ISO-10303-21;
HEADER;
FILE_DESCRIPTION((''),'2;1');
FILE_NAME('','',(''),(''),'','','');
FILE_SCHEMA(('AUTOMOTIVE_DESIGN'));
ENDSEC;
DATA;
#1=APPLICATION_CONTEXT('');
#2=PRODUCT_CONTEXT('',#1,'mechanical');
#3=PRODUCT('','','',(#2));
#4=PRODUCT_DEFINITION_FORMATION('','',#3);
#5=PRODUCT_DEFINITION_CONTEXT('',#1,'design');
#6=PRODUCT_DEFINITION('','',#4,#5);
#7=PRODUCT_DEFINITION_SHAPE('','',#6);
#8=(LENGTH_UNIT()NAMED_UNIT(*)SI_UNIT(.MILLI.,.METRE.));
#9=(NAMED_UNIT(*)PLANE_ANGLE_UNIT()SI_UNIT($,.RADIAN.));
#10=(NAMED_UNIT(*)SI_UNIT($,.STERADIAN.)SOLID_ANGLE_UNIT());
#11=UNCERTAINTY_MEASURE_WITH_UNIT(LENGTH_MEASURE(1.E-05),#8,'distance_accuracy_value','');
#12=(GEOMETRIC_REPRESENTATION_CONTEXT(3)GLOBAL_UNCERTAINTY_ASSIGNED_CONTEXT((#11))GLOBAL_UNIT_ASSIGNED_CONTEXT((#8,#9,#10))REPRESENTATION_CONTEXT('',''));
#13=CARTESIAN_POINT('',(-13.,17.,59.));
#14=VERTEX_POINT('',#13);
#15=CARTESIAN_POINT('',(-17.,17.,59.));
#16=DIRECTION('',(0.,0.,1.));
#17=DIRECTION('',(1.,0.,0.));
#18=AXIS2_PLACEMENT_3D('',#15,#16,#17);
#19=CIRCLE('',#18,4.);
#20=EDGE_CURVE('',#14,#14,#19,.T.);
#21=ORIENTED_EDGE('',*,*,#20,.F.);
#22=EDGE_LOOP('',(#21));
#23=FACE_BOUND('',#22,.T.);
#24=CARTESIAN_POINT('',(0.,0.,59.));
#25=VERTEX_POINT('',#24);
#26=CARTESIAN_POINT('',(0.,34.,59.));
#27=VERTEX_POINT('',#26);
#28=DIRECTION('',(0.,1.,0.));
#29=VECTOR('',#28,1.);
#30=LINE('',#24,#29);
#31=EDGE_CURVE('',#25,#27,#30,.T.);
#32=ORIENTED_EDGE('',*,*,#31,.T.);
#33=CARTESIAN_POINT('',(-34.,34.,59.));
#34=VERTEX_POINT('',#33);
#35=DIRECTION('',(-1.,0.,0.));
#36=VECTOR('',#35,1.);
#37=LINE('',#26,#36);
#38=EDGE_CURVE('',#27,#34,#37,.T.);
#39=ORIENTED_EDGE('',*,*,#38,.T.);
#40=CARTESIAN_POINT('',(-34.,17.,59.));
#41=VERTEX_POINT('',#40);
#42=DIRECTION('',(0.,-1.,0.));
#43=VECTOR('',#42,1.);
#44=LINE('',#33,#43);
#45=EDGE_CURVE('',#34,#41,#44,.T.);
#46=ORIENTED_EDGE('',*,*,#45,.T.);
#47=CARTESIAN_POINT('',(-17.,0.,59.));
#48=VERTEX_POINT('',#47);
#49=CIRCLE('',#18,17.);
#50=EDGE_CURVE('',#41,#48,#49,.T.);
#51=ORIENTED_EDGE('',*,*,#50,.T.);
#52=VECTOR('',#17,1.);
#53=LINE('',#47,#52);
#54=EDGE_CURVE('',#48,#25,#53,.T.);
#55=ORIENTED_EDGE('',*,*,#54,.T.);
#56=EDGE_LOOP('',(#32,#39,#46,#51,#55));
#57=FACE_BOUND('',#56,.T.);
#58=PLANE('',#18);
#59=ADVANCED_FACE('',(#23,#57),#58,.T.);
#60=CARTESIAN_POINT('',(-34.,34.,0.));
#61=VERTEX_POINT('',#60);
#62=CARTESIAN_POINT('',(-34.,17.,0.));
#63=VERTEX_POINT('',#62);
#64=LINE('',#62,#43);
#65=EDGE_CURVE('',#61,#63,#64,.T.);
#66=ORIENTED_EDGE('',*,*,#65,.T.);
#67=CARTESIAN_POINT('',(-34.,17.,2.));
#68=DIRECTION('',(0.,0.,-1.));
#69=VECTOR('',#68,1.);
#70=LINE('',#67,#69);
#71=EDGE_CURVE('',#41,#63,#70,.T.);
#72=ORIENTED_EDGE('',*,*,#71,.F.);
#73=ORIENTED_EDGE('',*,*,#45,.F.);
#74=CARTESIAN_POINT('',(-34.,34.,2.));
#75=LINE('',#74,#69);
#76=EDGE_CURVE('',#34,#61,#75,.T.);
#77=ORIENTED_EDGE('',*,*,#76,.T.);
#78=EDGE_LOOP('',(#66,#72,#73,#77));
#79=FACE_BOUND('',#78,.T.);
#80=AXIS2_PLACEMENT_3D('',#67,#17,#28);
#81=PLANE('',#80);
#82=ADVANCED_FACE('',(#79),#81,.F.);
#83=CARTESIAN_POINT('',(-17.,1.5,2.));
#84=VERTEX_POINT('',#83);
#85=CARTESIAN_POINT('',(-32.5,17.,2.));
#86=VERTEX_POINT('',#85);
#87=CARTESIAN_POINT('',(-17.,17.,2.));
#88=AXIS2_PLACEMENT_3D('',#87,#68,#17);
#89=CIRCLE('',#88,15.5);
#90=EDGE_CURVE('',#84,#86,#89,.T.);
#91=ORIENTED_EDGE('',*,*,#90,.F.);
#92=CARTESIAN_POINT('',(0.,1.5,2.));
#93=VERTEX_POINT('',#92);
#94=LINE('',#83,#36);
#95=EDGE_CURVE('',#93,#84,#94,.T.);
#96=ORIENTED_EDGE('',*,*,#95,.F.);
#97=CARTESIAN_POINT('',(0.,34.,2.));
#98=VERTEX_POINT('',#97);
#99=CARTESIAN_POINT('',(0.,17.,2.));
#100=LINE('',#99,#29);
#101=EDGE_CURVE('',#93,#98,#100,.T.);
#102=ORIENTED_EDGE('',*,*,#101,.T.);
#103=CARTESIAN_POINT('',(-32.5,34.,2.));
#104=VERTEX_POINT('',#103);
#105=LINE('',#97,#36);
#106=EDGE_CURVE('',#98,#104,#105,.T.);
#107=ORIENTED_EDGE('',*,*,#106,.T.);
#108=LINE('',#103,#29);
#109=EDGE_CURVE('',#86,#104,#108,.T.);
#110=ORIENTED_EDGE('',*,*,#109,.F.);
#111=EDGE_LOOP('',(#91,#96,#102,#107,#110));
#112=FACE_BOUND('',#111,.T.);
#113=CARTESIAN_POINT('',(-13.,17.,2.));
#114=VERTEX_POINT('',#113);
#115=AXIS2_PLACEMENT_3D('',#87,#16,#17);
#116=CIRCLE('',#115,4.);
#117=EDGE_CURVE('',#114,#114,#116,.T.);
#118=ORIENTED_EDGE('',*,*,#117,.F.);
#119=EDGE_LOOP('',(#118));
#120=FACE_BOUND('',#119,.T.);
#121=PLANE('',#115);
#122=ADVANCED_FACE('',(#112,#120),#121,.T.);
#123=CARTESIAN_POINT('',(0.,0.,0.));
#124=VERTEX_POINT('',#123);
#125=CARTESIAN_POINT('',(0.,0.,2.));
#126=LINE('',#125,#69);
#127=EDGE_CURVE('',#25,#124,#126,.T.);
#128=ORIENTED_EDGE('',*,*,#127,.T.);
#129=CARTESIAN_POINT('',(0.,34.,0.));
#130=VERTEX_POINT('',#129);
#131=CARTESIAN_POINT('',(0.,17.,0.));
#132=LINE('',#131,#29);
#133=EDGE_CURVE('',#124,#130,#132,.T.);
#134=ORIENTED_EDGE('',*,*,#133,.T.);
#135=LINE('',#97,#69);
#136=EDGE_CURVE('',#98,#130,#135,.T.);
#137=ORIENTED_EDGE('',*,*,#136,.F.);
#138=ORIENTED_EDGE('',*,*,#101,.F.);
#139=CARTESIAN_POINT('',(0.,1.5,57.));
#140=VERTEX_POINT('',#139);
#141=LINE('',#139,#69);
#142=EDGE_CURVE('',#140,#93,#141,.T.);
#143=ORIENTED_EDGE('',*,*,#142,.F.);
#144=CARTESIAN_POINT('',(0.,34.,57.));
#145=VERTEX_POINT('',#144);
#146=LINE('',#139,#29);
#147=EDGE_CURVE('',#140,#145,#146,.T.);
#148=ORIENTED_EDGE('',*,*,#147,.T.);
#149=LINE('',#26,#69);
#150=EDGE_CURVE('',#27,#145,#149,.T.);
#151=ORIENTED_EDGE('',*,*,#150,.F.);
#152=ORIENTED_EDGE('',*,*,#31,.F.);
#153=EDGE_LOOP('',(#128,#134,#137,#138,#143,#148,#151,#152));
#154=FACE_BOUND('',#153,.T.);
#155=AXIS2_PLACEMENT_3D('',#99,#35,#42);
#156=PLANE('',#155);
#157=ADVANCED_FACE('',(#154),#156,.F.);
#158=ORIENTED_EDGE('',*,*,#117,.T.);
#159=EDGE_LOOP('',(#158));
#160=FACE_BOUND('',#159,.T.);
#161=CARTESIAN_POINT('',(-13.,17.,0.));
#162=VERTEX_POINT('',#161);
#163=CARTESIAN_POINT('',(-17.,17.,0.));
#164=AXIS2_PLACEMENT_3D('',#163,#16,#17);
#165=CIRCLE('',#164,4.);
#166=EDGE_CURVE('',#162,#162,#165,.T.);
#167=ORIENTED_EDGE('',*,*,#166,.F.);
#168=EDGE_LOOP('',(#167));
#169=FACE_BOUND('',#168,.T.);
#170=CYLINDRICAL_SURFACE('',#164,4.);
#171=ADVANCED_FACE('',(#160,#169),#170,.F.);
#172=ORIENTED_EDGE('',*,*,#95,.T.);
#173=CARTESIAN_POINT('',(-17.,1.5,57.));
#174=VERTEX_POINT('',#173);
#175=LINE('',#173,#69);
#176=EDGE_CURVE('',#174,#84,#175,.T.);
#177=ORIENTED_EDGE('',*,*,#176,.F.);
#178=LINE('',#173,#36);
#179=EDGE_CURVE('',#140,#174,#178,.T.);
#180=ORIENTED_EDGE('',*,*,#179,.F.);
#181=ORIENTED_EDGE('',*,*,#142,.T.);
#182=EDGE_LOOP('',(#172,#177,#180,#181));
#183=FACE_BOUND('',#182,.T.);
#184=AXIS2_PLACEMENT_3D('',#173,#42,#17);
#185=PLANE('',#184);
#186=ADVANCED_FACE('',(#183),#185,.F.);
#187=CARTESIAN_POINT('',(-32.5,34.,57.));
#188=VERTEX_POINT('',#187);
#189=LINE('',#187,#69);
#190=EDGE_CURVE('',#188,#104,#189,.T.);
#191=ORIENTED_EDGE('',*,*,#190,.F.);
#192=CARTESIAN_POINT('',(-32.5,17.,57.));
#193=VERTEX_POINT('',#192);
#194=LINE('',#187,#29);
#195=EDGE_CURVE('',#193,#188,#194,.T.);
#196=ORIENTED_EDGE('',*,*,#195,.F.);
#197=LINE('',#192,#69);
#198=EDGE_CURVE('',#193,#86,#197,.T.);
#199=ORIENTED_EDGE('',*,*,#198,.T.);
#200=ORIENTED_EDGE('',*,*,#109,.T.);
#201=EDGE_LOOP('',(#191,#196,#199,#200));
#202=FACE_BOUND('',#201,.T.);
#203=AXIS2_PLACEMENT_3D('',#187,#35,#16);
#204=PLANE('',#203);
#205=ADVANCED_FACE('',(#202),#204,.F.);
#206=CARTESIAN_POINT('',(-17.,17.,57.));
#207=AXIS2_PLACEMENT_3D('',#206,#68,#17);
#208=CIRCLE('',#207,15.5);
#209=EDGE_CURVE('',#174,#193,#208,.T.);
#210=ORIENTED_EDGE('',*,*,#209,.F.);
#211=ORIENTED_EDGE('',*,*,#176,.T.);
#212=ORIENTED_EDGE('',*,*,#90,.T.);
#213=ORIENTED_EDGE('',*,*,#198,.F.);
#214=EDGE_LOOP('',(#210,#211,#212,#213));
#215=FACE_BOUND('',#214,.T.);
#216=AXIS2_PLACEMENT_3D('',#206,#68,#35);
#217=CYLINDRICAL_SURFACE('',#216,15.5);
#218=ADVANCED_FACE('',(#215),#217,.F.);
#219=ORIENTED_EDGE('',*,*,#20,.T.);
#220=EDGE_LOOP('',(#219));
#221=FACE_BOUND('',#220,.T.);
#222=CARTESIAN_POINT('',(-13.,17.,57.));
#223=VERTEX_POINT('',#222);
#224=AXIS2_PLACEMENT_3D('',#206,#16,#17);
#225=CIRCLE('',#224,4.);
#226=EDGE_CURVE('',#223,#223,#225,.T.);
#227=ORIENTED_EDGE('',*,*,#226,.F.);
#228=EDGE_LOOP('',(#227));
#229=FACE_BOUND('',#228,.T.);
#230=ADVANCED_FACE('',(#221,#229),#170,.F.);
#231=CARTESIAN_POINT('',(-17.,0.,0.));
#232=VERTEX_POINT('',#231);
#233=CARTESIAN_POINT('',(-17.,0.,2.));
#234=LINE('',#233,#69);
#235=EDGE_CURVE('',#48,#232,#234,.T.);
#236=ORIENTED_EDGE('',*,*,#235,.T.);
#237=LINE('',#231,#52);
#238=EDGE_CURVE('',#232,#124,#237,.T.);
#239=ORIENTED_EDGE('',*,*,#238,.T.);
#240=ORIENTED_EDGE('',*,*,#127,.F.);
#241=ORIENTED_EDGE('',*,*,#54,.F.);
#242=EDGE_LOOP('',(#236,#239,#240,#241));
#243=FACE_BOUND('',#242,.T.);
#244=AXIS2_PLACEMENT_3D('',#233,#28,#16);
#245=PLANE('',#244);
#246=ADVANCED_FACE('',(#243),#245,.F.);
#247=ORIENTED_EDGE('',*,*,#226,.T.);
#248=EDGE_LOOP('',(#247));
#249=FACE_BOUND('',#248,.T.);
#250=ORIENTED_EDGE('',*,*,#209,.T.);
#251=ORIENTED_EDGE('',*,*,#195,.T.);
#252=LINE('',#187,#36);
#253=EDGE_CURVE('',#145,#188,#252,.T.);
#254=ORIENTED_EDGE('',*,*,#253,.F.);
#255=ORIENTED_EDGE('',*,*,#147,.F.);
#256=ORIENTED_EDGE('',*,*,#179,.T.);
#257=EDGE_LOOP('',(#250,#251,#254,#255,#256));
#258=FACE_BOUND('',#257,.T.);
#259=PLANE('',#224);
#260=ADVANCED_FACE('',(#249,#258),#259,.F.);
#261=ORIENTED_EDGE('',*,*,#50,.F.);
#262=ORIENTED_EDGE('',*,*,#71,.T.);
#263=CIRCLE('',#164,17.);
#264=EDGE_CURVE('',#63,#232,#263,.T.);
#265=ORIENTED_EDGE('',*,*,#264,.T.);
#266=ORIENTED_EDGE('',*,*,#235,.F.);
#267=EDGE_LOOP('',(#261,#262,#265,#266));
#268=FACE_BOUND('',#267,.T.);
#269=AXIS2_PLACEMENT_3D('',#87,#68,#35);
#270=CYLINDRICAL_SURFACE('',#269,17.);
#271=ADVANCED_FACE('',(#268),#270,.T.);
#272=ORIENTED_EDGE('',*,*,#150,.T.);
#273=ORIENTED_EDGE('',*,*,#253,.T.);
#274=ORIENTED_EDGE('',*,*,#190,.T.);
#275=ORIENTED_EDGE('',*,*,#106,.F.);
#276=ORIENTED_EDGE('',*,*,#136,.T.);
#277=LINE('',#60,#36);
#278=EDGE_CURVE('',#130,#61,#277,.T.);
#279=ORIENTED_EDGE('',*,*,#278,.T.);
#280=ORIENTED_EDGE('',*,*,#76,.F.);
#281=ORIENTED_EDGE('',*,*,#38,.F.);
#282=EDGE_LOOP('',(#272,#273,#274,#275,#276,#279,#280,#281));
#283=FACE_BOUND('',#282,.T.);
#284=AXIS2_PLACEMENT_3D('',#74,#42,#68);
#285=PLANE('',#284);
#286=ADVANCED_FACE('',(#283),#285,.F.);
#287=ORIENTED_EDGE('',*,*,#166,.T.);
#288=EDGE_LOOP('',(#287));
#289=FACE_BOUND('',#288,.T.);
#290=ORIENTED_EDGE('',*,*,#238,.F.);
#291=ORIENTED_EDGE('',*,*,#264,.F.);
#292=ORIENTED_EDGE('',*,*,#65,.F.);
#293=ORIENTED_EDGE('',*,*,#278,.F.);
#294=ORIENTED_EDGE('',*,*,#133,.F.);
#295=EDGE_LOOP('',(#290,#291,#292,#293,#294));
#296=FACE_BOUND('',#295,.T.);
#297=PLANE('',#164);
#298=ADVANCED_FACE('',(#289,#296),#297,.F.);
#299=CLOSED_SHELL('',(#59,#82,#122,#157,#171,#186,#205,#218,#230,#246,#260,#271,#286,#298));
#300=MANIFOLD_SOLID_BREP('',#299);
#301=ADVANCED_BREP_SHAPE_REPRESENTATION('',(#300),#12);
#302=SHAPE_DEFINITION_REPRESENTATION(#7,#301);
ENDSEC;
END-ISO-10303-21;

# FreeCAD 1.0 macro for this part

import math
import FreeCAD as App
import Part
import Sketcher

V = App.Vector

doc = App.newDocument("Part")
body = doc.addObject("PartDesign::Body", "Body")

# Sketch on XY plane
sketch1 = body.newObject("Sketcher::SketchObject", "Sketch")
sketch1.AttachmentSupport = (doc.getObject("XY_Plane"), [""])
sketch1.MapMode = "FlatFace"
sketch1.addGeometry([
    Part.LineSegment(V(-17, 0, 0), V(0, 0, 0)),  # 0
    Part.LineSegment(V(0, 0, 0), V(0, 34, 0)),  # 1
    Part.LineSegment(V(0, 34, 0), V(-34, 34, 0)),  # 2
    Part.LineSegment(V(-34, 34, 0), V(-34, 17, 0)),  # 3
    Part.ArcOfCircle(Part.Circle(V(-17, 17, 0), V(0, 0, 1), 17), math.radians(-180), math.radians(-90)),  # 4
], False)
sketch1.addConstraint([
    Sketcher.Constraint("Coincident", 0, 2, 1, 1),
    Sketcher.Constraint("Coincident", 1, 2, 2, 1),
    Sketcher.Constraint("Coincident", 2, 2, 3, 1),
    Sketcher.Constraint("Tangent", 3, 2, 4, 1),
    Sketcher.Constraint("Tangent", 4, 2, 0, 1),
    Sketcher.Constraint("Horizontal", 0),
    Sketcher.Constraint("Vertical", 1),
    Sketcher.Constraint("Horizontal", 2),
    Sketcher.Constraint("Vertical", 3),
    Sketcher.Constraint("Coincident", 0, 2, -1, 1),
    Sketcher.Constraint("Equal", 2, 1),
    Sketcher.Constraint("Radius", 4, 17.0),
    Sketcher.Constraint("DistanceX", 0, 1, 0, 2, 17.0),
])
pad1 = body.newObject("PartDesign::Pad", "Pad")
pad1.Profile = sketch1
pad1.Length = 2

# Sketch on XY plane
sketch2 = body.newObject("Sketcher::SketchObject", "Sketch001")
sketch2.AttachmentSupport = (doc.getObject("XY_Plane"), [""])
sketch2.MapMode = "FlatFace"
sketch2.AttachmentOffset = App.Placement(V(0, 0, 2), App.Rotation())
sketch2.addGeometry([
    Part.LineSegment(V(-17, 0, 0), V(0, 0, 0)),  # 0
    Part.LineSegment(V(0, 0, 0), V(0, 1.5, 0)),  # 1
    Part.LineSegment(V(0, 1.5, 0), V(-17, 1.5, 0)),  # 2
    Part.ArcOfCircle(Part.Circle(V(-17, 17, 0), V(0, 0, 1), 15.5), math.radians(-180), math.radians(-90)),  # 3
    Part.LineSegment(V(-32.5, 17, 0), V(-32.5, 34, 0)),  # 4
    Part.LineSegment(V(-32.5, 34, 0), V(-34, 34, 0)),  # 5
    Part.LineSegment(V(-34, 34, 0), V(-34, 17, 0)),  # 6
    Part.ArcOfCircle(Part.Circle(V(-17, 17, 0), V(0, 0, 1), 17), math.radians(-180), math.radians(-90)),  # 7
], False)
sketch2.addConstraint([
    Sketcher.Constraint("Coincident", 0, 2, 1, 1),
    Sketcher.Constraint("Coincident", 1, 2, 2, 1),
    Sketcher.Constraint("Tangent", 2, 2, 3, 2),
    Sketcher.Constraint("Tangent", 3, 1, 4, 1),
    Sketcher.Constraint("Coincident", 4, 2, 5, 1),
    Sketcher.Constraint("Coincident", 5, 2, 6, 1),
    Sketcher.Constraint("Tangent", 6, 2, 7, 1),
    Sketcher.Constraint("Tangent", 7, 2, 0, 1),
    Sketcher.Constraint("Horizontal", 0),
    Sketcher.Constraint("Vertical", 1),
    Sketcher.Constraint("Horizontal", 2),
    Sketcher.Constraint("Vertical", 4),
    Sketcher.Constraint("Horizontal", 5),
    Sketcher.Constraint("Vertical", 6),
    Sketcher.Constraint("Coincident", 0, 2, -1, 1),
    Sketcher.Constraint("Coincident", 7, 3, 3, 3),
    Sketcher.Constraint("Equal", 2, 4),
    Sketcher.Constraint("Radius", 7, 17.0),
    Sketcher.Constraint("Radius", 3, 15.5),
    Sketcher.Constraint("DistanceX", 0, 1, 0, 2, 17.0),
])
pad2 = body.newObject("PartDesign::Pad", "Pad001")
pad2.Profile = sketch2
pad2.Length = 55

# Sketch on XY plane
sketch3 = body.newObject("Sketcher::SketchObject", "Sketch002")
sketch3.AttachmentSupport = (doc.getObject("XY_Plane"), [""])
sketch3.MapMode = "FlatFace"
sketch3.AttachmentOffset = App.Placement(V(0, 0, 57), App.Rotation())
sketch3.addGeometry([
    Part.LineSegment(V(0, 0, 0), V(0, 34, 0)),  # 0
    Part.LineSegment(V(0, 34, 0), V(-34, 34, 0)),  # 1
    Part.LineSegment(V(-34, 34, 0), V(-34, 17, 0)),  # 2
    Part.ArcOfCircle(Part.Circle(V(-17, 17, 0), V(0, 0, 1), 17), math.radians(-180), math.radians(-90)),  # 3
    Part.LineSegment(V(-17, 0, 0), V(0, 0, 0)),  # 4
], False)
sketch3.addConstraint([
    Sketcher.Constraint("Coincident", 0, 2, 1, 1),
    Sketcher.Constraint("Coincident", 1, 2, 2, 1),
    Sketcher.Constraint("Tangent", 2, 2, 3, 1),
    Sketcher.Constraint("Tangent", 3, 2, 4, 1),
    Sketcher.Constraint("Coincident", 4, 2, 0, 1),
    Sketcher.Constraint("Vertical", 0),
    Sketcher.Constraint("Horizontal", 1),
    Sketcher.Constraint("Vertical", 2),
    Sketcher.Constraint("Horizontal", 4),
    Sketcher.Constraint("Coincident", 4, 2, -1, 1),
    Sketcher.Constraint("Equal", 1, 0),
    Sketcher.Constraint("Radius", 3, 17.0),
    Sketcher.Constraint("DistanceX", 1, 2, 1, 1, 34.0),
])
pad3 = body.newObject("PartDesign::Pad", "Pad002")
pad3.Profile = sketch3
pad3.Length = 2

# Sketch on XY plane
sketch4 = body.newObject("Sketcher::SketchObject", "Sketch003")
sketch4.AttachmentSupport = (doc.getObject("XY_Plane"), [""])
sketch4.MapMode = "FlatFace"
sketch4.AttachmentOffset = App.Placement(V(0, 0, 59), App.Rotation())
sketch4.addGeometry(Part.Circle(V(-17, 17, 0), V(0, 0, 1), 4), False)
sketch4.addConstraint([
    Sketcher.Constraint("Diameter", 0, 8.0),
    Sketcher.Constraint("DistanceX", 0, 3, -1, 1, 17.0),
    Sketcher.Constraint("DistanceY", -1, 1, 0, 3, 17.0),
])
pocket1 = body.newObject("PartDesign::Pocket", "Pocket")
pocket1.Profile = sketch4
pocket1.Type = "ThroughAll"

doc.recompute()
